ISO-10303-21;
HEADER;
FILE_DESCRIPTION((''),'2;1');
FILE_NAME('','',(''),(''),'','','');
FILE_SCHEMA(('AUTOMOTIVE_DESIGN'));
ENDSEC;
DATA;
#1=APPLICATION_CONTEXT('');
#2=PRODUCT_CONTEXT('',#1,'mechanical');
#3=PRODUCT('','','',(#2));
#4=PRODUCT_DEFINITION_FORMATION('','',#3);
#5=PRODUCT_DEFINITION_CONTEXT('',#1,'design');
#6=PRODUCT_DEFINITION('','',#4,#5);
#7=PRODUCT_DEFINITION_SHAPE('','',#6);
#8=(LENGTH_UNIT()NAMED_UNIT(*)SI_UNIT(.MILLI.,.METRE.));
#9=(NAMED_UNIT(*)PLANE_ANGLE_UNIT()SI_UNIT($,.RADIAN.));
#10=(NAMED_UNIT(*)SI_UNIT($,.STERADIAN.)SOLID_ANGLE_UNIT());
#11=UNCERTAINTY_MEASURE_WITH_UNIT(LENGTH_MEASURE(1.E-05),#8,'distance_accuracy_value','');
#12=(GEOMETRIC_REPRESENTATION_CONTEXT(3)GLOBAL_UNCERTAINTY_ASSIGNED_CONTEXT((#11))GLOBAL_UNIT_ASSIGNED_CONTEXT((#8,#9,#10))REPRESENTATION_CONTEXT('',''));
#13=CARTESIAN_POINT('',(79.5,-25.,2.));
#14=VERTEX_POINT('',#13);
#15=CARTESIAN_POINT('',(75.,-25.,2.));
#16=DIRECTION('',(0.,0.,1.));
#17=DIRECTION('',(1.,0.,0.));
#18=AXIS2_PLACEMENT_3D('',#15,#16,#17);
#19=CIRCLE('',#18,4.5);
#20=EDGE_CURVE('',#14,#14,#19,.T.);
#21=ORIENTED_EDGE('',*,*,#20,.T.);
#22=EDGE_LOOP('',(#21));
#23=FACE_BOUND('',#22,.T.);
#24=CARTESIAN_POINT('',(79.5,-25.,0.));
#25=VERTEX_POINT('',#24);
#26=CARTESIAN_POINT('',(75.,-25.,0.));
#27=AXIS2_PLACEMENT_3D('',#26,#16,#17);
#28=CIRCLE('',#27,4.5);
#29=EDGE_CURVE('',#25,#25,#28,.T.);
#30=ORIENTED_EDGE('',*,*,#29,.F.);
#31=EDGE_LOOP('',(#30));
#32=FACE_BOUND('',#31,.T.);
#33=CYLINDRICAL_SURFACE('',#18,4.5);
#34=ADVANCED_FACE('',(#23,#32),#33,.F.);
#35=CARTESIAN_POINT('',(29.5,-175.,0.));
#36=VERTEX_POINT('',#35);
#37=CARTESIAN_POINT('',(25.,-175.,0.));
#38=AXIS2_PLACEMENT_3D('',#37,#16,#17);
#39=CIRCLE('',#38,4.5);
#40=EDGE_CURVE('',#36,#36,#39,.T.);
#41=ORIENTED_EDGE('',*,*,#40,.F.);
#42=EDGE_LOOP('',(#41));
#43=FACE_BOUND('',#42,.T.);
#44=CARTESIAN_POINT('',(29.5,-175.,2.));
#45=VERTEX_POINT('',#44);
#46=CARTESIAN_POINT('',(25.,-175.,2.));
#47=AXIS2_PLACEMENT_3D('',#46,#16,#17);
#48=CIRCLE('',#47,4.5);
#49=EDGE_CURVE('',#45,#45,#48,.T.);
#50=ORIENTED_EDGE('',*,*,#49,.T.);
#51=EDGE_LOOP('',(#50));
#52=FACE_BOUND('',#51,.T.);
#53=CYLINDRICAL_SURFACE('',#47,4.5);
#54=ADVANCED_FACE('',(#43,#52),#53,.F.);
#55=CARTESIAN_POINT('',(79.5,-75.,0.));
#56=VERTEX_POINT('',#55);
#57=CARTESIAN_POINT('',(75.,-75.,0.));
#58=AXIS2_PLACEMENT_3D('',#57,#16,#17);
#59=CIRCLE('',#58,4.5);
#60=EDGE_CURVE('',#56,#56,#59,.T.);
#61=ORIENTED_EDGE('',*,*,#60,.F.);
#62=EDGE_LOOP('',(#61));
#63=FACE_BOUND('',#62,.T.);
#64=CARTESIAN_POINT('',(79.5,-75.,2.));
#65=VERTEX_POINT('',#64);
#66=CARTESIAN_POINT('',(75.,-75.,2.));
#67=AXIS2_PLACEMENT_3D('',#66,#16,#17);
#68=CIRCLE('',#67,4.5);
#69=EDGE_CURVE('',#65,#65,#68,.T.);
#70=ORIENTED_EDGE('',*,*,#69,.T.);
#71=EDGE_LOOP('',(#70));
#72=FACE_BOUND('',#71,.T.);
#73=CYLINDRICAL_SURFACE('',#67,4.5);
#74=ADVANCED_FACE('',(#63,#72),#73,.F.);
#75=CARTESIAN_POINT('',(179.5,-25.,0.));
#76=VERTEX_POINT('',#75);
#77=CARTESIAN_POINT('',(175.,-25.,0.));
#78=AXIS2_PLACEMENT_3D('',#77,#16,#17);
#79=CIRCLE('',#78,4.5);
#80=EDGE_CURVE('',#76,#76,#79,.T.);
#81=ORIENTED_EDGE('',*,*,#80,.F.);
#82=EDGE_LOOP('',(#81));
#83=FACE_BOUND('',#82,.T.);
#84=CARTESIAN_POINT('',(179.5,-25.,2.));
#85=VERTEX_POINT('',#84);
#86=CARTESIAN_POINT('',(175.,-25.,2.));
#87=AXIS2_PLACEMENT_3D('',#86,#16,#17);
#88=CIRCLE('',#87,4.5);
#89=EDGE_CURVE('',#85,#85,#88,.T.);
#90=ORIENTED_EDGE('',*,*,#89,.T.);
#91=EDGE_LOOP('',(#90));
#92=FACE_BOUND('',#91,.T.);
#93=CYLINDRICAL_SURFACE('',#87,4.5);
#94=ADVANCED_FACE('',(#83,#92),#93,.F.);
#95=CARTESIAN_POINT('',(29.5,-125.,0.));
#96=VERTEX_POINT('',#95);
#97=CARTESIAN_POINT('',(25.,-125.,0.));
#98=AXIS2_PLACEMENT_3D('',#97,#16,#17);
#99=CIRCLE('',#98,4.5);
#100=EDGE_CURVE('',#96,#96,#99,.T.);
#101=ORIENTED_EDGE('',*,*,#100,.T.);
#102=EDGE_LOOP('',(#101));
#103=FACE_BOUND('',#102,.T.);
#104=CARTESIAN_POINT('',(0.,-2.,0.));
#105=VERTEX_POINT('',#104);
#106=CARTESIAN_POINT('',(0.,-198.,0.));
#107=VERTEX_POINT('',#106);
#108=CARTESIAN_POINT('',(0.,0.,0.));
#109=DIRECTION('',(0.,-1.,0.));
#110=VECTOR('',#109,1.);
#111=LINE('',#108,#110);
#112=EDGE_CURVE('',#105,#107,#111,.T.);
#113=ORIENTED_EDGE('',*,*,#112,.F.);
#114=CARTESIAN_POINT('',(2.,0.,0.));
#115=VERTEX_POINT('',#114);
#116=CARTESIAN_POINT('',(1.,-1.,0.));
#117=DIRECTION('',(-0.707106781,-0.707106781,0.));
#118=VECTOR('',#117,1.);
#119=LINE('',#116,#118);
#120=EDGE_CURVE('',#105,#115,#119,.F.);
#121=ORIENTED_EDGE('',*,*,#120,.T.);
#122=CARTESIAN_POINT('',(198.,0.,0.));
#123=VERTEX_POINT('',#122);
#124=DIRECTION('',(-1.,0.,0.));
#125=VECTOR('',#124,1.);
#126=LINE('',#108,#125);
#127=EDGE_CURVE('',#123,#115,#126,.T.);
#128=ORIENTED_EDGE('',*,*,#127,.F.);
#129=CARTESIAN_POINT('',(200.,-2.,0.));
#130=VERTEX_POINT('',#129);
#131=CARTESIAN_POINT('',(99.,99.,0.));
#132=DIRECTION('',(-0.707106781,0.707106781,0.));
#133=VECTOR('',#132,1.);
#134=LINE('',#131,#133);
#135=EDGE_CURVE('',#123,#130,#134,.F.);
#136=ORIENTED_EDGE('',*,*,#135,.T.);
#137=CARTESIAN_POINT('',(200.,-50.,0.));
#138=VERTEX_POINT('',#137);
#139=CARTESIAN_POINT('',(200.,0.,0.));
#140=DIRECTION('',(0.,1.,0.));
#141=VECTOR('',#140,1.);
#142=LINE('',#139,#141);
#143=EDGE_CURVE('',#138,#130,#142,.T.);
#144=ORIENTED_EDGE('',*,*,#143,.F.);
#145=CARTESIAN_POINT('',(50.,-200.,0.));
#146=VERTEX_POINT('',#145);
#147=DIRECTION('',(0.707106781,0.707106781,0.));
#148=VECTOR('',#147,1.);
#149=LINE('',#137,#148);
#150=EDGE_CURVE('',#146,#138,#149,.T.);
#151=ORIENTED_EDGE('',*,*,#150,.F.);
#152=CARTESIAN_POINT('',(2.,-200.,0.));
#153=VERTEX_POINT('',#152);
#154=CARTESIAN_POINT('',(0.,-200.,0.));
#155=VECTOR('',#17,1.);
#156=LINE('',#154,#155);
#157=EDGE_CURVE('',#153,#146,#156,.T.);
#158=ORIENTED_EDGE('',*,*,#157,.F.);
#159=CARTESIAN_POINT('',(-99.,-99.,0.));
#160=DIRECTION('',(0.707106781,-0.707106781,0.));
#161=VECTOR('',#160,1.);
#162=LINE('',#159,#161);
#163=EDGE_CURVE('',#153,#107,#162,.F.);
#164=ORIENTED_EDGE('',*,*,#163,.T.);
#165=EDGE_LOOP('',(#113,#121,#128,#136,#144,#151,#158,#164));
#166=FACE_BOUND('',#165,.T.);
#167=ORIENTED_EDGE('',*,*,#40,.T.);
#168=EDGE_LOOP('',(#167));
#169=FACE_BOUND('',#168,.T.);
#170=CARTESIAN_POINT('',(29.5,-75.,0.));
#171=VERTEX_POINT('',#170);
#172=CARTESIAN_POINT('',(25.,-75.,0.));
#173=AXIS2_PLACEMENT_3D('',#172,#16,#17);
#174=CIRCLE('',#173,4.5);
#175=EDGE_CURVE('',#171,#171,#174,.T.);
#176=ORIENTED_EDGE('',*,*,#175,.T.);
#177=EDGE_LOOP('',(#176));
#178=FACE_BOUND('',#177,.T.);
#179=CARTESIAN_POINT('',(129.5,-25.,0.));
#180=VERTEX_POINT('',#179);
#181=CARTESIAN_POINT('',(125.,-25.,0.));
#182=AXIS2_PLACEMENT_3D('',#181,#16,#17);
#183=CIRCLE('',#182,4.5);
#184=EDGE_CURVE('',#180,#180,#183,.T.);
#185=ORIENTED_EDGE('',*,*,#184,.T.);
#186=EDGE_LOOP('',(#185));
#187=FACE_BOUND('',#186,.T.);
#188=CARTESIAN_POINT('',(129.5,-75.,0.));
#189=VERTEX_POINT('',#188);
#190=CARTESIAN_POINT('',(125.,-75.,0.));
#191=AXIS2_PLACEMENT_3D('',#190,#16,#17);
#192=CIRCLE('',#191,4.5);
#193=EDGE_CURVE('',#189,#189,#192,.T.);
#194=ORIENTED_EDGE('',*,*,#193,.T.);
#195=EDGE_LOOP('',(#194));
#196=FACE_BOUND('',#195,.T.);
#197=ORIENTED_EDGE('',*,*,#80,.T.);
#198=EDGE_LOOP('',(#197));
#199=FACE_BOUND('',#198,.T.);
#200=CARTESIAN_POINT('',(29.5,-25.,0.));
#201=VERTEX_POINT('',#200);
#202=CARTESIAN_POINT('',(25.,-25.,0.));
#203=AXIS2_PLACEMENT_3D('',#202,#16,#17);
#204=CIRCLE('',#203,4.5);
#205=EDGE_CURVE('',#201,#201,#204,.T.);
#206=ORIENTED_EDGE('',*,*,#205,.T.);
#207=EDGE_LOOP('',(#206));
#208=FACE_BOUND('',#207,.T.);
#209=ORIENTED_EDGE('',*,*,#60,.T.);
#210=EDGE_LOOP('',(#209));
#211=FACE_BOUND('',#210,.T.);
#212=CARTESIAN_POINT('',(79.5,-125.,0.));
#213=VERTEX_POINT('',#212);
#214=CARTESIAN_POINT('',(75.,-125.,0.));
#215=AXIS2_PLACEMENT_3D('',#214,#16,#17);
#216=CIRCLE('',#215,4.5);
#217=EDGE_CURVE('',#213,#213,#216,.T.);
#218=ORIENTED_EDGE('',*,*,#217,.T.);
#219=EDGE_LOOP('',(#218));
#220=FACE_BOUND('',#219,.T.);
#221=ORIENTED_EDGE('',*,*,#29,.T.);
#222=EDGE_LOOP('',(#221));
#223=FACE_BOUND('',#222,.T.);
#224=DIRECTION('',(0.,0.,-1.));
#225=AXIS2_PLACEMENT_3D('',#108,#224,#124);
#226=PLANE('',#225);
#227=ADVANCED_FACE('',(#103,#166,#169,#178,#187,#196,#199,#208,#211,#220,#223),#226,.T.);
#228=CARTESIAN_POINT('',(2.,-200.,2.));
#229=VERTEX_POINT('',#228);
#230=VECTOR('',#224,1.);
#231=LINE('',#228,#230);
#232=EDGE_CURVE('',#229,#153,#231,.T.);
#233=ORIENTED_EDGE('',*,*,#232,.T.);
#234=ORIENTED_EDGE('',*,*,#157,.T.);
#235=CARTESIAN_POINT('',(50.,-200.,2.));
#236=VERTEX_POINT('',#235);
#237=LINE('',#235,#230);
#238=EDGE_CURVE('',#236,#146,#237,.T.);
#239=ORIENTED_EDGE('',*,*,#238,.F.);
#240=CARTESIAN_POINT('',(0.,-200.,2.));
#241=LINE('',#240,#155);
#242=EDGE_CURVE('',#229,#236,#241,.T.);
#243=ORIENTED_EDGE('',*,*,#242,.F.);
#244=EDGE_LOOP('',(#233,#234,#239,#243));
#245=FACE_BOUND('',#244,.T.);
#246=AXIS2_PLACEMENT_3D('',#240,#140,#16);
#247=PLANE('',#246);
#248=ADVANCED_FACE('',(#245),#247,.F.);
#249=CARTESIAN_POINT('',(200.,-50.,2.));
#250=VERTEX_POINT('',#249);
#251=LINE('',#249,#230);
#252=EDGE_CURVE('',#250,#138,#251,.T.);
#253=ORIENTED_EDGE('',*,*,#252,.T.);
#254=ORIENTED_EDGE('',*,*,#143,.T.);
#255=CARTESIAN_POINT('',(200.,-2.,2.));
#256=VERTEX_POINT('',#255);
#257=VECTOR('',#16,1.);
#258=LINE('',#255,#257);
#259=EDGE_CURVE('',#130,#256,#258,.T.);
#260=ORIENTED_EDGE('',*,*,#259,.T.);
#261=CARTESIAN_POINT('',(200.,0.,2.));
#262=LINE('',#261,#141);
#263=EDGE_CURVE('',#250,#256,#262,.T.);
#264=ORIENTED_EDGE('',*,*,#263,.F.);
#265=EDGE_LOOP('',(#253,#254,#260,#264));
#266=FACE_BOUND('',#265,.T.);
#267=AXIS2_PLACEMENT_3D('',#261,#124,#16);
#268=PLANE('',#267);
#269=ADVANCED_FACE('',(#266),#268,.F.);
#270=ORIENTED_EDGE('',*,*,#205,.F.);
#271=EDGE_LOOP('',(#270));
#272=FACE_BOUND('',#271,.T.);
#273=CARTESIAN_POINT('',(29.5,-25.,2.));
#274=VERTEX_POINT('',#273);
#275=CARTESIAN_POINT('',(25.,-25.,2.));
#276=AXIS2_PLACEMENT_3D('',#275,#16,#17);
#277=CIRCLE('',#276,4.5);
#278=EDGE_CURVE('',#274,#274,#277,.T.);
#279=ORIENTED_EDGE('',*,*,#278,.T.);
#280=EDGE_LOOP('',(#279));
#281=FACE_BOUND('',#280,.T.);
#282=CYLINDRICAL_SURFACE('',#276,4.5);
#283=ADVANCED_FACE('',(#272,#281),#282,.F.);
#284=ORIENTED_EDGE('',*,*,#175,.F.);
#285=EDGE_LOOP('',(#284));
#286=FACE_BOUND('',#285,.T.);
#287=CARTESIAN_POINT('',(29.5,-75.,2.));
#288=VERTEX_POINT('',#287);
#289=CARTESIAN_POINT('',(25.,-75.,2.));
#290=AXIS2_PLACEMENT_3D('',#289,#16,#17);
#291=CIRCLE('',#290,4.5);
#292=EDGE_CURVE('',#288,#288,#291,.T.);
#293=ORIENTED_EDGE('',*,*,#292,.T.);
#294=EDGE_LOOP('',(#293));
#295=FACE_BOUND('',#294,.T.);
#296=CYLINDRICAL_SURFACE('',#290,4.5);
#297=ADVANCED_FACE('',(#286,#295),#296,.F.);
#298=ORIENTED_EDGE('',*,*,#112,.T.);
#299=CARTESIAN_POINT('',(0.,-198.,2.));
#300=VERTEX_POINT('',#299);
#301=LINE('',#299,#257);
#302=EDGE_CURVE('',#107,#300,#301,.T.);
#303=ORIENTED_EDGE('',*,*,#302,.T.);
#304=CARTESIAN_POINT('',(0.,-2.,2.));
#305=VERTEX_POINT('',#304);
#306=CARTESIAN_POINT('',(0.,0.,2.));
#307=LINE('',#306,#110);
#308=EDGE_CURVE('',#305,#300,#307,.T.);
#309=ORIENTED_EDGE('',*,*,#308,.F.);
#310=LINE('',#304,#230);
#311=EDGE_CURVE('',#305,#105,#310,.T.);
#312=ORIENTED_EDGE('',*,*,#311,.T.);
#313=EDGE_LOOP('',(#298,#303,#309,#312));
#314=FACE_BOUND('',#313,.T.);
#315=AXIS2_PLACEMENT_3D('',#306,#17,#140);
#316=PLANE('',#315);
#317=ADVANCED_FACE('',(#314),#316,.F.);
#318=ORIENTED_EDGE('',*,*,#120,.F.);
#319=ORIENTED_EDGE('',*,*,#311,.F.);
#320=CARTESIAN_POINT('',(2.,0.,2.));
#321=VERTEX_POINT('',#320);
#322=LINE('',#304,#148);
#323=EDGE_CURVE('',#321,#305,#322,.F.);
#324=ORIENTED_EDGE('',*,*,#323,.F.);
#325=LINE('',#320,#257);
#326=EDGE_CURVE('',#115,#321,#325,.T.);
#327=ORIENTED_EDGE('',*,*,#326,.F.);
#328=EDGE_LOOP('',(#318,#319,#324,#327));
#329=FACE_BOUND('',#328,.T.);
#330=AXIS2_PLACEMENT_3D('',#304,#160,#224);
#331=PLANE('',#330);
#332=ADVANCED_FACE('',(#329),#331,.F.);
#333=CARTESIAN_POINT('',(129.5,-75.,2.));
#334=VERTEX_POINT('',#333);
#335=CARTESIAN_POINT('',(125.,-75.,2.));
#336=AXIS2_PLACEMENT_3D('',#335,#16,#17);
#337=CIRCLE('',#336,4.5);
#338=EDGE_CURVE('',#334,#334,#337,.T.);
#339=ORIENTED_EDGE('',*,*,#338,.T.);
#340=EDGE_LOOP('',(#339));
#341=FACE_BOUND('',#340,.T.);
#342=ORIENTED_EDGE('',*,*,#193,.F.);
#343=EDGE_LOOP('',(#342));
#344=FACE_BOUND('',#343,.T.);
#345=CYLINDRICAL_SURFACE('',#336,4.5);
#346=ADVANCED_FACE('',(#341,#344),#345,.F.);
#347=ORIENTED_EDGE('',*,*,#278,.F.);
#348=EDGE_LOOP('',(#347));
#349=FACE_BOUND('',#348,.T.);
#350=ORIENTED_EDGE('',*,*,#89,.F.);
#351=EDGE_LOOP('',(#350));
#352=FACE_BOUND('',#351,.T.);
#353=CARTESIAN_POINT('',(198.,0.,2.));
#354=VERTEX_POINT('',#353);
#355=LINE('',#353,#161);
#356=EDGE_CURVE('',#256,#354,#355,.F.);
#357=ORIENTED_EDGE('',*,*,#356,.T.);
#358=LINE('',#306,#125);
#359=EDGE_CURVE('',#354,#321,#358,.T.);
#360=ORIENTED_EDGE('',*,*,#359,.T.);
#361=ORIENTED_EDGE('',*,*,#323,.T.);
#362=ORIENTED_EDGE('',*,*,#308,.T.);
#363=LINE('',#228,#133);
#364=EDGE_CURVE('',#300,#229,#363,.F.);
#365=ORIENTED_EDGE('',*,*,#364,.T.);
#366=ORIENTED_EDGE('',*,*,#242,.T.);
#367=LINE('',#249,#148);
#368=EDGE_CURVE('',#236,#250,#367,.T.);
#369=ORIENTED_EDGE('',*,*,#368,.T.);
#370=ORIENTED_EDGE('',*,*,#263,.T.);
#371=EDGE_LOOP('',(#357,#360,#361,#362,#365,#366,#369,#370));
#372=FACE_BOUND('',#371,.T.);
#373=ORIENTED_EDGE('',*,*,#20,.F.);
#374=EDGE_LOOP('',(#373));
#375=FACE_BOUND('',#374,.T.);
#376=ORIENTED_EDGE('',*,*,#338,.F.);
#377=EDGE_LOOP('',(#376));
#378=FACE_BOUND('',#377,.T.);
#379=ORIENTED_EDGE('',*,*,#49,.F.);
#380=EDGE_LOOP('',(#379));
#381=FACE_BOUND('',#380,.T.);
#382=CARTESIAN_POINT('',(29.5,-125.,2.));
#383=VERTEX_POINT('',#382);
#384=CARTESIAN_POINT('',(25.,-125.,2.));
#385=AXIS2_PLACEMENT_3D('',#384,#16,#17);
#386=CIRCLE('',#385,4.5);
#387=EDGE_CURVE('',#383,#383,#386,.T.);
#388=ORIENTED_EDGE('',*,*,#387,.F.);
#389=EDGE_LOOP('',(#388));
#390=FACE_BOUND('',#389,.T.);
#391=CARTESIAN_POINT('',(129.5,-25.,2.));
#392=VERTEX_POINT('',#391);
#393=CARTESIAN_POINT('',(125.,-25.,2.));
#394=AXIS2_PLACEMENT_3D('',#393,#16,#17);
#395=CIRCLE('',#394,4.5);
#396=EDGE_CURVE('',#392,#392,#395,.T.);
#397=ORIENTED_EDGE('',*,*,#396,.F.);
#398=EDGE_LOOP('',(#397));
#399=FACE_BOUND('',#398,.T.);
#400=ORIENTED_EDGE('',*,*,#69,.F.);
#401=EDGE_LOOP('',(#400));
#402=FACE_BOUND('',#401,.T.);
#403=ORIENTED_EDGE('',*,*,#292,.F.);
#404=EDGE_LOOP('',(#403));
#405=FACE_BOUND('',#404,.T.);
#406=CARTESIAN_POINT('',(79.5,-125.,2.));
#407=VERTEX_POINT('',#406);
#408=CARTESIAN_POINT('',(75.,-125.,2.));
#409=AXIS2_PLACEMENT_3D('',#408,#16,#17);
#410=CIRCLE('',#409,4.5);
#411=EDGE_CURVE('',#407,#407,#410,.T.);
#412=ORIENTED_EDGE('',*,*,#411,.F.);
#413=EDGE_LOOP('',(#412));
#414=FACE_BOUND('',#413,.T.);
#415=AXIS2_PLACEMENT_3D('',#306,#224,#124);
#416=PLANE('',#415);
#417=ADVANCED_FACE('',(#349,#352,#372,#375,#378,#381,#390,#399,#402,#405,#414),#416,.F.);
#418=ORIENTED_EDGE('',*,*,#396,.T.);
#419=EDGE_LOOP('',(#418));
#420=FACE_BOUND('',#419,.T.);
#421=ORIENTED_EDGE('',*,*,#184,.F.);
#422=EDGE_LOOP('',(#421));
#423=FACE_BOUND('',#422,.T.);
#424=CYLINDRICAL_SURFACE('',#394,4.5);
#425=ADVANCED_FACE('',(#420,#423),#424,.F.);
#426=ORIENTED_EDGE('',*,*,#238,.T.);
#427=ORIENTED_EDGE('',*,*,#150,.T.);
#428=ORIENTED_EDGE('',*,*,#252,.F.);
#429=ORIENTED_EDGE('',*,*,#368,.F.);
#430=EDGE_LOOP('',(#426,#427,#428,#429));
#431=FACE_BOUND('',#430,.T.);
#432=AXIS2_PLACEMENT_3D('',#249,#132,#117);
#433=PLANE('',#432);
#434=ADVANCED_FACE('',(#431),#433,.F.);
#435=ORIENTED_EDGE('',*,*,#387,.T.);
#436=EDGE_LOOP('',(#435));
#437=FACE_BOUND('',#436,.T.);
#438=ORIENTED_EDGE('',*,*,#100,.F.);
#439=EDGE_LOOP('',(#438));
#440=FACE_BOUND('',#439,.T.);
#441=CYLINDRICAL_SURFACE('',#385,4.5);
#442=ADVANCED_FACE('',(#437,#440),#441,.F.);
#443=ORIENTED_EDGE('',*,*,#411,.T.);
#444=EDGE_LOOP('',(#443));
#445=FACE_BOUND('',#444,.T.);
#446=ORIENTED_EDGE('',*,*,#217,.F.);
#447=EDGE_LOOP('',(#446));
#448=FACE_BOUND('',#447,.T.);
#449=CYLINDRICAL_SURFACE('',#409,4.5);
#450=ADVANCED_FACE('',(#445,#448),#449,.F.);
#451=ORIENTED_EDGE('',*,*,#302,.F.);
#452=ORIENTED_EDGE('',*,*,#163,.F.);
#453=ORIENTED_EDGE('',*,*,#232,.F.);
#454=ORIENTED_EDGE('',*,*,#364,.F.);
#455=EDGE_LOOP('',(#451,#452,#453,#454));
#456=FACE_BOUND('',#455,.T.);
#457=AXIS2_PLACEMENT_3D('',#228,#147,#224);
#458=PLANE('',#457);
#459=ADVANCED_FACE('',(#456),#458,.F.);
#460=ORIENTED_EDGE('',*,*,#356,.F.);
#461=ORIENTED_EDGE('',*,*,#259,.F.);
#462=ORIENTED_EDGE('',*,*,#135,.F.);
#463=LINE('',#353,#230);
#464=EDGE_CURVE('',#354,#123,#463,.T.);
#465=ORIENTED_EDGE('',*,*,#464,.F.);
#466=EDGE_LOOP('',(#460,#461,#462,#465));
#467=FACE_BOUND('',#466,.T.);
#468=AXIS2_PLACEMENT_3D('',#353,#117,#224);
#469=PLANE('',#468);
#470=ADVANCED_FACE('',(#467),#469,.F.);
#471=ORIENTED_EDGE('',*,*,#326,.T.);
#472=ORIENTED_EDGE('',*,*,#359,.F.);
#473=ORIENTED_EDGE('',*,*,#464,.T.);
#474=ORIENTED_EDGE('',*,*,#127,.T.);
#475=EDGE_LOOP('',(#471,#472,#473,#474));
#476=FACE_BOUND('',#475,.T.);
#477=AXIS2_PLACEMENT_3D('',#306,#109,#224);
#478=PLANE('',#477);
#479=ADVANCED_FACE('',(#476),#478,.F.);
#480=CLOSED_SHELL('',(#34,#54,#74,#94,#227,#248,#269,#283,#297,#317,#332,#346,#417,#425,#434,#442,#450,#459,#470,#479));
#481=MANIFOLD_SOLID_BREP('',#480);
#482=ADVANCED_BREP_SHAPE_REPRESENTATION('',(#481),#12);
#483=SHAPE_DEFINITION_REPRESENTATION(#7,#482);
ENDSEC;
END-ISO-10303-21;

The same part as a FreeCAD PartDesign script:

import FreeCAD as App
import Part
import Sketcher

V = App.Vector
Q = App.Units.Quantity


def edges_at(feature, points):
    """Names of the edges that pass closest to the given points."""
    edges = feature.Shape.Edges
    near = lambda p: min(range(len(edges)), key=lambda i: edges[i].distToShape(Part.Vertex(*p))[0])
    return sorted({f"Edge{near(p) + 1}" for p in points})


def add_polygon(sketch, points):
    """Adds a closed chain of lines whose ends are joined by coincident constraints."""
    first, n = sketch.GeometryCount, len(points)
    for a, b in zip(points, points[1:] + points[:1]):
        sketch.addGeometry(Part.LineSegment(App.Vector(*a, 0), App.Vector(*b, 0)), False)
    for i in range(n):
        sketch.addConstraint(Sketcher.Constraint("Coincident", first + i, 2, first + (i + 1) % n, 1))

doc = App.newDocument("Part")
body = doc.addObject("PartDesign::Body", "Body")

sketch1 = body.newObject("Sketcher::SketchObject", "Sketch")
sketch1.AttachmentSupport = (doc.getObject("XY_Plane"), [""])
sketch1.MapMode = "FlatFace"
add_polygon(sketch1, [(0, 0), (0, -200), (50, -200), (200, -50), (200, 0)])
sketch1.addConstraint(Sketcher.Constraint("Vertical", 0))
sketch1.addConstraint(Sketcher.Constraint("Horizontal", 1))
sketch1.addConstraint(Sketcher.Constraint("Vertical", 3))
sketch1.addConstraint(Sketcher.Constraint("Horizontal", 4))
sketch1.addConstraint(Sketcher.Constraint("Coincident", 4, 2, -1, 1))
sketch1.addConstraint(Sketcher.Constraint("Equal", 4, 0))
sketch1.addConstraint(Sketcher.Constraint("Equal", 1, 3))
sketch1.addConstraint(Sketcher.Constraint("DistanceX", 1, 1, 1, 2, Q("50 mm")))
sketch1.addConstraint(Sketcher.Constraint("DistanceX", 4, 2, 4, 1, Q("200 mm")))
pad1 = body.newObject("PartDesign::Pad", "Pad")
pad1.Profile = sketch1
pad1.Length = 2
doc.recompute()

chamfer = body.newObject("PartDesign::Chamfer", "Chamfer")
chamfer.Base = (pad1, edges_at(pad1, [(200, 0, 1), (0, -200, 1), (0, 0, 1)]))
chamfer.Size = 2

sketch2 = body.newObject("Sketcher::SketchObject", "Sketch001")
sketch2.AttachmentSupport = (doc.getObject("XY_Plane"), [""])
sketch2.MapMode = "FlatFace"
sketch2.AttachmentOffset = App.Placement(V(0, 0, 2), App.Rotation())
sketch2.addGeometry(Part.Circle(V(25, -25, 0), V(0, 0, 1), 4.5), False)
sketch2.addGeometry(Part.Circle(V(75, -25, 0), V(0, 0, 1), 4.5), False)
sketch2.addGeometry(Part.Circle(V(125, -25, 0), V(0, 0, 1), 4.5), False)
sketch2.addGeometry(Part.Circle(V(175, -25, 0), V(0, 0, 1), 4.5), False)
sketch2.addGeometry(Part.Circle(V(25, -75, 0), V(0, 0, 1), 4.5), False)
sketch2.addGeometry(Part.Circle(V(25, -125, 0), V(0, 0, 1), 4.5), False)
sketch2.addGeometry(Part.Circle(V(25, -175, 0), V(0, 0, 1), 4.5), False)
sketch2.addGeometry(Part.Circle(V(75, -125, 0), V(0, 0, 1), 4.5), False)
sketch2.addGeometry(Part.Circle(V(125, -75, 0), V(0, 0, 1), 4.5), False)
sketch2.addGeometry(Part.Circle(V(75, -75, 0), V(0, 0, 1), 4.5), False)
sketch2.addConstraint(Sketcher.Constraint("Equal", 0, 1))
sketch2.addConstraint(Sketcher.Constraint("Equal", 1, 2))
sketch2.addConstraint(Sketcher.Constraint("Equal", 2, 3))
sketch2.addConstraint(Sketcher.Constraint("Equal", 3, 4))
sketch2.addConstraint(Sketcher.Constraint("Equal", 4, 5))
sketch2.addConstraint(Sketcher.Constraint("Equal", 5, 6))
sketch2.addConstraint(Sketcher.Constraint("Equal", 6, 7))
sketch2.addConstraint(Sketcher.Constraint("Equal", 7, 8))
sketch2.addConstraint(Sketcher.Constraint("Equal", 8, 9))
sketch2.addConstraint(Sketcher.Constraint("Horizontal", 0, 3, 1, 3))
sketch2.addConstraint(Sketcher.Constraint("Horizontal", 1, 3, 2, 3))
sketch2.addConstraint(Sketcher.Constraint("Horizontal", 2, 3, 3, 3))
sketch2.addConstraint(Sketcher.Constraint("Horizontal", 5, 3, 7, 3))
sketch2.addConstraint(Sketcher.Constraint("Horizontal", 4, 3, 8, 3))
sketch2.addConstraint(Sketcher.Constraint("Horizontal", 8, 3, 9, 3))
sketch2.addConstraint(Sketcher.Constraint("Vertical", 0, 3, 4, 3))
sketch2.addConstraint(Sketcher.Constraint("Vertical", 4, 3, 5, 3))
sketch2.addConstraint(Sketcher.Constraint("Vertical", 5, 3, 6, 3))
sketch2.addConstraint(Sketcher.Constraint("Vertical", 1, 3, 7, 3))
sketch2.addConstraint(Sketcher.Constraint("Vertical", 2, 3, 8, 3))
sketch2.addConstraint(Sketcher.Constraint("Vertical", 7, 3, 9, 3))
sketch2.addConstraint(Sketcher.Constraint("Diameter", 0, Q("9 mm")))
sketch2.addConstraint(Sketcher.Constraint("DistanceX", -1, 1, 0, 3, Q("25 mm")))
sketch2.addConstraint(Sketcher.Constraint("DistanceY", 0, 3, -1, 1, Q("25 mm")))
sketch2.addConstraint(Sketcher.Constraint("DistanceX", -1, 1, 1, 3, Q("75 mm")))
sketch2.addConstraint(Sketcher.Constraint("DistanceX", -1, 1, 2, 3, Q("125 mm")))
sketch2.addConstraint(Sketcher.Constraint("DistanceX", -1, 1, 3, 3, Q("175 mm")))
sketch2.addConstraint(Sketcher.Constraint("DistanceY", 4, 3, -1, 1, Q("75 mm")))
sketch2.addConstraint(Sketcher.Constraint("DistanceY", 5, 3, -1, 1, Q("125 mm")))
sketch2.addConstraint(Sketcher.Constraint("DistanceY", 6, 3, -1, 1, Q("175 mm")))
doc.recompute()
hole = body.newObject("PartDesign::Hole", "Hole")
hole.Profile = sketch2
hole.ThreadType = "None"
hole.Diameter = 9
hole.DepthType = "ThroughAll"

doc.recompute()
